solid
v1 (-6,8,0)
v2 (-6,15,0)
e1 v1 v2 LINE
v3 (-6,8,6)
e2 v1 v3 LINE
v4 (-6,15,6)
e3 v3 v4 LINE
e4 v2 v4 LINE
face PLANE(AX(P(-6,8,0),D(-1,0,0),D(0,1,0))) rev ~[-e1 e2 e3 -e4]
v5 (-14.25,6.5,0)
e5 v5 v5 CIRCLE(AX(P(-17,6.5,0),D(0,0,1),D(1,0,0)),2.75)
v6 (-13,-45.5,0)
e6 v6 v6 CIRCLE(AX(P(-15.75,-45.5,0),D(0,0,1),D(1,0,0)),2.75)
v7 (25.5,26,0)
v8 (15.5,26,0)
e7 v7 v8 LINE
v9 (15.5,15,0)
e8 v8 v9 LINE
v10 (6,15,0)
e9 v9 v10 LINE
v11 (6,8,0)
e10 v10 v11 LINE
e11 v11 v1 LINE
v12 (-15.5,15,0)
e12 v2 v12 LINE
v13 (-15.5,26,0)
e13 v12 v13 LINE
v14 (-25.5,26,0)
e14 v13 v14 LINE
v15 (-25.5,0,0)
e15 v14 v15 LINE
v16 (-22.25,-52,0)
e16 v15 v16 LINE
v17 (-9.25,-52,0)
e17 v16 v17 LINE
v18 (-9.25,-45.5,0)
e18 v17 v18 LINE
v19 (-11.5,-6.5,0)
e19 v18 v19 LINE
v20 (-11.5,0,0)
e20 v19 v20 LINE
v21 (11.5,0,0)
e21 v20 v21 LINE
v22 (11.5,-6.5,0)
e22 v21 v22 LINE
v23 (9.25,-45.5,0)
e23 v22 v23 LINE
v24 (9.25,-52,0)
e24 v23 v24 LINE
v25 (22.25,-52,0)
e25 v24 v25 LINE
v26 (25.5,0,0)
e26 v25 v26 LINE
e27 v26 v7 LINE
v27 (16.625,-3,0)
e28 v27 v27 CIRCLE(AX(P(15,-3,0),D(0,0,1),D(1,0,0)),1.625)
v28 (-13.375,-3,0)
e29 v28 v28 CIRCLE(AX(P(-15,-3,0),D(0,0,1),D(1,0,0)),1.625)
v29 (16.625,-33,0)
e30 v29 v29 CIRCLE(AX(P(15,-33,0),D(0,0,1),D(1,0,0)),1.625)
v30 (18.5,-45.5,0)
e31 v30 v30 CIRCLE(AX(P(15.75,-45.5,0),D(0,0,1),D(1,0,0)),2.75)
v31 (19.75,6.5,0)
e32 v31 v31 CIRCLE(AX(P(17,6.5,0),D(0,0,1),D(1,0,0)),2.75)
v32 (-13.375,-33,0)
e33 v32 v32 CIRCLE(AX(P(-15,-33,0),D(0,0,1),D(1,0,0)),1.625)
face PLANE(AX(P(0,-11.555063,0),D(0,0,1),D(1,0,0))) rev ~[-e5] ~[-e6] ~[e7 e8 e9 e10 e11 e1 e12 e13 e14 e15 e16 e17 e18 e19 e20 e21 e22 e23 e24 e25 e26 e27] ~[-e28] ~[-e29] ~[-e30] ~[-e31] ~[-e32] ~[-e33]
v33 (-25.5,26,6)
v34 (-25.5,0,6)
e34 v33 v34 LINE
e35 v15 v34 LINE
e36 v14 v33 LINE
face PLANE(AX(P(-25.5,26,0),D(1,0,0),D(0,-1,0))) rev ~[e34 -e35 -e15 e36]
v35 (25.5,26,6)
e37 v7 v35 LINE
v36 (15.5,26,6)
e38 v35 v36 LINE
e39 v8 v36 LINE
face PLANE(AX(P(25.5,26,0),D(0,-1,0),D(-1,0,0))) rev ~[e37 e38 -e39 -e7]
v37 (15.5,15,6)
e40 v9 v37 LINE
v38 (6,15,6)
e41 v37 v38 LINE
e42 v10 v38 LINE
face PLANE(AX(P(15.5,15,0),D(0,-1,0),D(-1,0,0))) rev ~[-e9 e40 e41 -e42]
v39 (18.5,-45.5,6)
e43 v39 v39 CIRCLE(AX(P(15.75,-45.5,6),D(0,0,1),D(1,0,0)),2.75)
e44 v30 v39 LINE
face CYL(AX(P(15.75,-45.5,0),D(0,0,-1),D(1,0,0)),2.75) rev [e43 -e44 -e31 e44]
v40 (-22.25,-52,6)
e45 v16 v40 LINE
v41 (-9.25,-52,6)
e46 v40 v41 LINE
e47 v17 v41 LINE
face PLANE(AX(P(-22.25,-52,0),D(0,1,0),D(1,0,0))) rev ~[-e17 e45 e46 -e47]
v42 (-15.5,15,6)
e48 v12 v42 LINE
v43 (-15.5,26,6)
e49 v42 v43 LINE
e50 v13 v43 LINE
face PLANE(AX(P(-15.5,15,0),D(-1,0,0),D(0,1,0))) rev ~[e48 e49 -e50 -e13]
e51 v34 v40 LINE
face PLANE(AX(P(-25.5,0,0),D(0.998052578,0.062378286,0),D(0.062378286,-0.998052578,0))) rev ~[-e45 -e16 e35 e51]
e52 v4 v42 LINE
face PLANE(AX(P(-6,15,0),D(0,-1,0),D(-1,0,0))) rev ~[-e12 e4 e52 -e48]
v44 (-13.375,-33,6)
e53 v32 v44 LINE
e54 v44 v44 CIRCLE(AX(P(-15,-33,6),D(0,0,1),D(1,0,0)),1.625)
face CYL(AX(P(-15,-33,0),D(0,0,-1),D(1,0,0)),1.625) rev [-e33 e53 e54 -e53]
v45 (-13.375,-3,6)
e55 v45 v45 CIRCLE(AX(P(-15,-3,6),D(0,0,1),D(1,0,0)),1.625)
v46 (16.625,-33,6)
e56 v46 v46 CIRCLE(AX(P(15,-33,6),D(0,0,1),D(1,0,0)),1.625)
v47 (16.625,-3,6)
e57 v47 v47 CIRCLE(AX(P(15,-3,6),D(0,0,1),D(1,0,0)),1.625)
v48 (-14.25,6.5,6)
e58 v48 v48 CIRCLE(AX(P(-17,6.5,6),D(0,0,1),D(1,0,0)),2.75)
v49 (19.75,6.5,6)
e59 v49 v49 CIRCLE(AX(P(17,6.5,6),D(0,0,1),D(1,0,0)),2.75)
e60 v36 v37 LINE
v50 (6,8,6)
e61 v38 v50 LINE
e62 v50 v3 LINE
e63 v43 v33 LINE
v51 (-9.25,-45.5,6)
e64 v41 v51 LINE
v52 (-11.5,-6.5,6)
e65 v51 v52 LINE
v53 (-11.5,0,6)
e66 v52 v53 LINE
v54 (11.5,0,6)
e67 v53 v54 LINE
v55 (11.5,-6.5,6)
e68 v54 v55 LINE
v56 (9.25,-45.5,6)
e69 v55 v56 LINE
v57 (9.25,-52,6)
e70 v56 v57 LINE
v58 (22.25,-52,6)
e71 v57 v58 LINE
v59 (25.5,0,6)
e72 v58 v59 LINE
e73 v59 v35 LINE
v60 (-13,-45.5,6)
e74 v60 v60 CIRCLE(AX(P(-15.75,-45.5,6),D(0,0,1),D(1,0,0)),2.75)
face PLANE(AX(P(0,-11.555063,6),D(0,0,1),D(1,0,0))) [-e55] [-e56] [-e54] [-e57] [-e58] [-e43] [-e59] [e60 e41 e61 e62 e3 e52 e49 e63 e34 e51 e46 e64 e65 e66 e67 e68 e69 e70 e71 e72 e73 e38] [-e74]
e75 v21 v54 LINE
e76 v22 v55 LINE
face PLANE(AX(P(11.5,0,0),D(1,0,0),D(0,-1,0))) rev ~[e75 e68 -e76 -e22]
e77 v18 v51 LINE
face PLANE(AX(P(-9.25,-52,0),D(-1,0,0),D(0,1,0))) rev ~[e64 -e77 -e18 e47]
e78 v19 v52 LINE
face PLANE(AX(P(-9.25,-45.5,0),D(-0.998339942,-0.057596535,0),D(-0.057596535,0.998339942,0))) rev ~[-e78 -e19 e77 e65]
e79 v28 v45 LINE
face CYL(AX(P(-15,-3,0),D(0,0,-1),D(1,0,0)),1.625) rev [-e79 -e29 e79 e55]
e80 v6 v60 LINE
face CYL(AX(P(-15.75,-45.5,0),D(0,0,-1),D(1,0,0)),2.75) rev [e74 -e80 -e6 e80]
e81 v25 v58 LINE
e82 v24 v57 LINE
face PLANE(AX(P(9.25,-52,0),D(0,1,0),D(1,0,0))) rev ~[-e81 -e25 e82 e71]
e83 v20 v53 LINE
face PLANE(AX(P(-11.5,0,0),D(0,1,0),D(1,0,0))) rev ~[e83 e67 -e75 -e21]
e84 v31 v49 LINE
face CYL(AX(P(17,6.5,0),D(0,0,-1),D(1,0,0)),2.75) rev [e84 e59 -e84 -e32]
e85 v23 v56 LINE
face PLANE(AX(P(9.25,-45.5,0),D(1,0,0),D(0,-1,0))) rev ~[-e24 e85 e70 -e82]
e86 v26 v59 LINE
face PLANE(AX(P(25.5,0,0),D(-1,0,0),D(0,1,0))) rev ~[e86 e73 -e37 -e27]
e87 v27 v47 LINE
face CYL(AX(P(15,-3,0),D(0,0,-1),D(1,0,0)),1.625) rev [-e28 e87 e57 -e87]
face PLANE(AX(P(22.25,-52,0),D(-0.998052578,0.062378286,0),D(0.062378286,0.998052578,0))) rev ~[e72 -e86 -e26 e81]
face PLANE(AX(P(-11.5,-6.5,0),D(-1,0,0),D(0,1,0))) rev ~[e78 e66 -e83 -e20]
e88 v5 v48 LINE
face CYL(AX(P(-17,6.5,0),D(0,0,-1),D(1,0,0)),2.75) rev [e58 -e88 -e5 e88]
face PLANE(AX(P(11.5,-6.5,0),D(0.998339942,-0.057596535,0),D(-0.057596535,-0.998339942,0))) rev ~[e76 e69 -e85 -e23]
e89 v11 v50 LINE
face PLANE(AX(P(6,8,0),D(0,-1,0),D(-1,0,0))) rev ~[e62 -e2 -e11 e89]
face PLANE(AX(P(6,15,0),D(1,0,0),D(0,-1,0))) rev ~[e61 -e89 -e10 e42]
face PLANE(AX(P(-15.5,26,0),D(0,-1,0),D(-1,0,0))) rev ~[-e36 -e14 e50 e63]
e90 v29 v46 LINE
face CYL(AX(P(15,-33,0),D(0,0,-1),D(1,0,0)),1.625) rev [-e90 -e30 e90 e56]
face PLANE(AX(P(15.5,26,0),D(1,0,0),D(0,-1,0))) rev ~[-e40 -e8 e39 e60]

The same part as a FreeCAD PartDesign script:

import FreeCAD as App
import Part
import Sketcher
from FreeCAD import Vector

doc = App.newDocument("Part")
body = doc.addObject("PartDesign::Body", "Body")

# Sketch on XY plane
sketch1 = body.newObject("Sketcher::SketchObject", "Sketch")
sketch1.AttachmentSupport = (doc.getObject("XY_Plane"), [""])
sketch1.MapMode = "FlatFace"
sketch1.addGeometry(Part.LineSegment(Vector(-6, 15, 0), Vector(-15.5, 15, 0)), False)
sketch1.addGeometry(Part.LineSegment(Vector(-15.5, 15, 0), Vector(-15.5, 26, 0)), False)
sketch1.addGeometry(Part.LineSegment(Vector(-15.5, 26, 0), Vector(-25.5, 26, 0)), False)
sketch1.addGeometry(Part.LineSegment(Vector(-25.5, 26, 0), Vector(-25.5, 0, 0)), False)
sketch1.addGeometry(Part.LineSegment(Vector(-25.5, 0, 0), Vector(-22.2, -52, 0)), False)
sketch1.addGeometry(Part.LineSegment(Vector(-22.2, -52, 0), Vector(-9.2, -52, 0)), False)
sketch1.addGeometry(Part.LineSegment(Vector(-9.2, -52, 0), Vector(-9.2, -45.5, 0)), False)
sketch1.addGeometry(Part.LineSegment(Vector(-9.2, -45.5, 0), Vector(-11.5, -6.5, 0)), False)
sketch1.addGeometry(Part.LineSegment(Vector(-11.5, -6.5, 0), Vector(-11.5, 0, 0)), False)
sketch1.addGeometry(Part.LineSegment(Vector(-11.5, 0, 0), Vector(11.5, 0, 0)), False)
sketch1.addGeometry(Part.LineSegment(Vector(11.5, 0, 0), Vector(11.5, -6.5, 0)), False)
sketch1.addGeometry(Part.LineSegment(Vector(11.5, -6.5, 0), Vector(9.2, -45.5, 0)), False)
sketch1.addGeometry(Part.LineSegment(Vector(9.2, -45.5, 0), Vector(9.2, -52, 0)), False)
sketch1.addGeometry(Part.LineSegment(Vector(9.2, -52, 0), Vector(22.2, -52, 0)), False)
sketch1.addGeometry(Part.LineSegment(Vector(22.2, -52, 0), Vector(25.5, 0, 0)), False)
sketch1.addGeometry(Part.LineSegment(Vector(25.5, 0, 0), Vector(25.5, 26, 0)), False)
sketch1.addGeometry(Part.LineSegment(Vector(25.5, 26, 0), Vector(15.5, 26, 0)), False)
sketch1.addGeometry(Part.LineSegment(Vector(15.5, 26, 0), Vector(15.5, 15, 0)), False)
sketch1.addGeometry(Part.LineSegment(Vector(15.5, 15, 0), Vector(6, 15, 0)), False)
sketch1.addGeometry(Part.LineSegment(Vector(6, 15, 0), Vector(6, 8, 0)), False)
sketch1.addGeometry(Part.LineSegment(Vector(6, 8, 0), Vector(-6, 8, 0)), False)
sketch1.addGeometry(Part.LineSegment(Vector(-6, 8, 0), Vector(-6, 15, 0)), False)
sketch1.addGeometry(Part.Circle(Vector(-15.8, -45.5, 0), Vector(0, 0, 1), 2.8), False)
sketch1.addGeometry(Part.Circle(Vector(-15, -33, 0), Vector(0, 0, 1), 1.6), False)
sketch1.addGeometry(Part.Circle(Vector(15.8, -45.5, 0), Vector(0, 0, 1), 2.8), False)
sketch1.addGeometry(Part.Circle(Vector(15, -33, 0), Vector(0, 0, 1), 1.6), False)
sketch1.addGeometry(Part.Circle(Vector(-15, -3, 0), Vector(0, 0, 1), 1.6), False)
sketch1.addGeometry(Part.Circle(Vector(-17, 6.5, 0), Vector(0, 0, 1), 2.8), False)
sketch1.addGeometry(Part.Circle(Vector(15, -3, 0), Vector(0, 0, 1), 1.6), False)
sketch1.addGeometry(Part.Circle(Vector(17, 6.5, 0), Vector(0, 0, 1), 2.8), False)
sketch1.addConstraint(Sketcher.Constraint("Coincident", 0, 2, 1, 1))
sketch1.addConstraint(Sketcher.Constraint("Coincident", 1, 2, 2, 1))
sketch1.addConstraint(Sketcher.Constraint("Coincident", 2, 2, 3, 1))
sketch1.addConstraint(Sketcher.Constraint("Coincident", 3, 2, 4, 1))
sketch1.addConstraint(Sketcher.Constraint("Coincident", 4, 2, 5, 1))
sketch1.addConstraint(Sketcher.Constraint("Coincident", 5, 2, 6, 1))
sketch1.addConstraint(Sketcher.Constraint("Coincident", 6, 2, 7, 1))
sketch1.addConstraint(Sketcher.Constraint("Coincident", 7, 2, 8, 1))
sketch1.addConstraint(Sketcher.Constraint("Coincident", 8, 2, 9, 1))
sketch1.addConstraint(Sketcher.Constraint("Coincident", 9, 2, 10, 1))
sketch1.addConstraint(Sketcher.Constraint("Coincident", 10, 2, 11, 1))
sketch1.addConstraint(Sketcher.Constraint("Coincident", 11, 2, 12, 1))
sketch1.addConstraint(Sketcher.Constraint("Coincident", 12, 2, 13, 1))
sketch1.addConstraint(Sketcher.Constraint("Coincident", 13, 2, 14, 1))
sketch1.addConstraint(Sketcher.Constraint("Coincident", 14, 2, 15, 1))
sketch1.addConstraint(Sketcher.Constraint("Coincident", 15, 2, 16, 1))
sketch1.addConstraint(Sketcher.Constraint("Coincident", 16, 2, 17, 1))
sketch1.addConstraint(Sketcher.Constraint("Coincident", 17, 2, 18, 1))
sketch1.addConstraint(Sketcher.Constraint("Coincident", 18, 2, 19, 1))
sketch1.addConstraint(Sketcher.Constraint("Coincident", 19, 2, 20, 1))
sketch1.addConstraint(Sketcher.Constraint("Coincident", 20, 2, 21, 1))
sketch1.addConstraint(Sketcher.Constraint("Coincident", 21, 2, 0, 1))
sketch1.addConstraint(Sketcher.Constraint("Horizontal", 0))
sketch1.addConstraint(Sketcher.Constraint("Vertical", 1))
sketch1.addConstraint(Sketcher.Constraint("Horizontal", 2))
sketch1.addConstraint(Sketcher.Constraint("Vertical", 3))
sketch1.addConstraint(Sketcher.Constraint("Horizontal", 5))
sketch1.addConstraint(Sketcher.Constraint("Vertical", 6))
sketch1.addConstraint(Sketcher.Constraint("Vertical", 8))
sketch1.addConstraint(Sketcher.Constraint("Horizontal", 9))
sketch1.addConstraint(Sketcher.Constraint("Vertical", 10))
sketch1.addConstraint(Sketcher.Constraint("Vertical", 12))
sketch1.addConstraint(Sketcher.Constraint("Horizontal", 13))
sketch1.addConstraint(Sketcher.Constraint("Vertical", 15))
sketch1.addConstraint(Sketcher.Constraint("Horizontal", 16))
sketch1.addConstraint(Sketcher.Constraint("Vertical", 17))
sketch1.addConstraint(Sketcher.Constraint("Horizontal", 18))
sketch1.addConstraint(Sketcher.Constraint("Vertical", 19))
sketch1.addConstraint(Sketcher.Constraint("Horizontal", 20))
sketch1.addConstraint(Sketcher.Constraint("Vertical", 21))
sketch1.addConstraint(Sketcher.Constraint("Equal", 22, 24))
sketch1.addConstraint(Sketcher.Constraint("Equal", 23, 25))
sketch1.addConstraint(Sketcher.Constraint("Equal", 25, 26))
sketch1.addConstraint(Sketcher.Constraint("Equal", 24, 27))
sketch1.addConstraint(Sketcher.Constraint("Equal", 26, 28))
sketch1.addConstraint(Sketcher.Constraint("Equal", 27, 29))
sketch1.addConstraint(Sketcher.Constraint("Symmetric", 8, 2, 9, 2, -1, 1))
sketch1.addConstraint(Sketcher.Constraint("Symmetric", 3, 2, 14, 2, -1, 1))
sketch1.addConstraint(Sketcher.Constraint("Symmetric", 22, 3, 24, 3, -2))
sketch1.addConstraint(Sketcher.Constraint("Symmetric", 23, 3, 25, 3, -2))
sketch1.addConstraint(Sketcher.Constraint("Symmetric", 26, 3, 28, 3, -2))
sketch1.addConstraint(Sketcher.Constraint("Symmetric", 27, 3, 29, 3, -2))
sketch1.addConstraint(Sketcher.Constraint("Symmetric", 6, 2, 11, 2, -2))
sketch1.addConstraint(Sketcher.Constraint("Symmetric", 4, 2, 13, 2, -2))
sketch1.addConstraint(Sketcher.Constraint("Symmetric", 1, 2, 16, 2, -2))
sketch1.addConstraint(Sketcher.Constraint("Symmetric", 18, 2, 21, 2, -2))
sketch1.addConstraint(Sketcher.Constraint("PointOnObject", 3, 2, -1))
sketch1.addConstraint(Sketcher.Constraint("Horizontal", 24, 3, 6, 2))
sketch1.addConstraint(Sketcher.Constraint("Horizontal", 7, 2, 10, 2))
sketch1.addConstraint(Sketcher.Constraint("Vertical", 23, 3, 26, 3))
sketch1.addConstraint(Sketcher.Constraint("Equal", 6, 8))
sketch1.addConstraint(Sketcher.Constraint("Diameter", 22, 5.5))
sketch1.addConstraint(Sketcher.Constraint("Diameter", 23, 3.25))
sketch1.addConstraint(Sketcher.Constraint("DistanceX", 2, 2, 2, 1, 10.0))
sketch1.addConstraint(Sketcher.Constraint("DistanceX", 5, 1, 5, 2, 13.0))
sketch1.addConstraint(Sketcher.Constraint("DistanceX", 9, 1, 9, 2, 23.0))
sketch1.addConstraint(Sketcher.Constraint("DistanceX", 20, 2, 20, 1, 12.0))
sketch1.addConstraint(Sketcher.Constraint("DistanceY", 1, 1, 1, 2, 11.0))
sketch1.addConstraint(Sketcher.Constraint("DistanceY", 3, 2, 3, 1, 26.0))
sketch1.addConstraint(Sketcher.Constraint("DistanceY", 19, 2, 19, 1, 7.0))
sketch1.addConstraint(Sketcher.Constraint("DistanceX", 0, 2, 0, 1, 9.5))
sketch1.addConstraint(Sketcher.Constraint("DistanceY", 6, 1, 6, 2, 6.5))
sketch1.addConstraint(Sketcher.Constraint("DistanceX", 23, 3, -1, 1, 15.0))
sketch1.addConstraint(Sketcher.Constraint("DistanceY", 23, 3, -1, 1, 33.0))
sketch1.addConstraint(Sketcher.Constraint("DistanceY", 26, 3, -1, 1, 3.0))
sketch1.addConstraint(Sketcher.Constraint("DistanceX", 27, 3, -1, 1, 17.0))
sketch1.addConstraint(Sketcher.Constraint("DistanceY", 4, 2, -1, 1, 52.0))
sketch1.addConstraint(Sketcher.Constraint("DistanceY", 22, 3, 27, 3, 52.0))
sketch1.addConstraint(Sketcher.Constraint("DistanceX", 4, 2, 24, 3, 38.0))
sketch1.addConstraint(Sketcher.Constraint("DistanceX", 22, 3, 24, 3, 31.5))
pad1 = body.newObject("PartDesign::Pad", "Pad")
pad1.Profile = sketch1
pad1.Length = 6

doc.recompute()
